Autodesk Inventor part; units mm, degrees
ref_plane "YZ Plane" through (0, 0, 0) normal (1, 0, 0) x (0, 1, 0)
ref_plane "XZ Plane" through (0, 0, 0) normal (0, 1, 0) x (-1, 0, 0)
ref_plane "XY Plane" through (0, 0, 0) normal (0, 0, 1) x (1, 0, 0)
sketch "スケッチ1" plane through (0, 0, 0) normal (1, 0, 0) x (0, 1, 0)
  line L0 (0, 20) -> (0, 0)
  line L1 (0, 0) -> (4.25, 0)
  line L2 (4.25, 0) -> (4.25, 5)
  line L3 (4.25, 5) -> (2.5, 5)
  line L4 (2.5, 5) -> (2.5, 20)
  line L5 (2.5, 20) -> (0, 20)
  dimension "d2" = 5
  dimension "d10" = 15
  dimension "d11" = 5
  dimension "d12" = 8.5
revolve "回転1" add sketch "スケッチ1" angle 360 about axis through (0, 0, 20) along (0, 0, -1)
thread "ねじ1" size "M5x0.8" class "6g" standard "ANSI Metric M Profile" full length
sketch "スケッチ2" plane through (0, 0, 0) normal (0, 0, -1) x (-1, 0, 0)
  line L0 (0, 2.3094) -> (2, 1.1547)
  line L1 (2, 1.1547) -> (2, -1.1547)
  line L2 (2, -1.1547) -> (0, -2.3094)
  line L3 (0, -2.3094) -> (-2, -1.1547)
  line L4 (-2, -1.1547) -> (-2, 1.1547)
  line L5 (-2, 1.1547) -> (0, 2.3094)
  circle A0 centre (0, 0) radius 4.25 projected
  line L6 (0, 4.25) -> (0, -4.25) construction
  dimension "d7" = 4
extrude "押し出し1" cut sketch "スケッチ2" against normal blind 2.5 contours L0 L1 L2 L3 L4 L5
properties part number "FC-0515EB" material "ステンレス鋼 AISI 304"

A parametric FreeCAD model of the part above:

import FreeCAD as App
import Part
import Sketcher
Q = App.Units.Quantity

doc = App.newDocument("Part")
params = doc.addObject("Spreadsheet::Sheet", "Params")
for row, (alias, value) in enumerate([
    ("sketch1_height", "5 mm"),
    ("sketch1_height2", "15 mm"),
    ("sketch1_width", "2.5 mm"),
    ("sketch1_width2", "4.25 mm"),
    ("revolution_angle", "360 deg"),
    ("pocket1_length", "2.5 mm"),
], start=1):
    params.set(f"A{row}", alias)
    params.set(f"B{row}", "=" + value)
    params.setAlias(f"B{row}", alias)

body = doc.addObject("PartDesign::Body", "Body")

sketch1 = body.newObject("Sketcher::SketchObject", "Sketch")
sketch1.AttachmentSupport = (doc.getObject("YZ_Plane"), [""])
sketch1.MapMode = "FlatFace"
sketch1.addGeometry([
    Part.LineSegment(App.Vector(2.5, 20, 0), App.Vector(0, 20, 0)),
    Part.LineSegment(App.Vector(0, 20, 0), App.Vector(0, 0, 0)),
    Part.LineSegment(App.Vector(0, 0, 0), App.Vector(4.2, 0, 0)),
    Part.LineSegment(App.Vector(4.2, 0, 0), App.Vector(4.2, 5, 0)),
    Part.LineSegment(App.Vector(4.2, 5, 0), App.Vector(2.5, 5, 0)),
    Part.LineSegment(App.Vector(2.5, 5, 0), App.Vector(2.5, 20, 0)),
], False)
sketch1.addConstraint([
    Sketcher.Constraint("Coincident", 0, 2, 1, 1),
    Sketcher.Constraint("Coincident", 1, 2, 2, 1),
    Sketcher.Constraint("Coincident", 2, 2, 3, 1),
    Sketcher.Constraint("Coincident", 3, 2, 4, 1),
    Sketcher.Constraint("Coincident", 4, 2, 5, 1),
    Sketcher.Constraint("Coincident", 5, 2, 0, 1),
    Sketcher.Constraint("Horizontal", 0),
    Sketcher.Constraint("Vertical", 1),
    Sketcher.Constraint("Horizontal", 2),
    Sketcher.Constraint("Vertical", 3),
    Sketcher.Constraint("Horizontal", 4),
    Sketcher.Constraint("Vertical", 5),
    Sketcher.Constraint("Coincident", 1, 2, -1, 1),
    Sketcher.Constraint("DistanceY", 3, 1, 3, 2, Q("5 mm")),
    Sketcher.Constraint("DistanceY", 5, 1, 5, 2, Q("15 mm")),
    Sketcher.Constraint("DistanceX", 0, 2, 0, 1, Q("2.5 mm")),
    Sketcher.Constraint("DistanceX", 2, 1, 2, 2, Q("4.25 mm")),
])
sketch1.setExpression("Constraints[13]", "Params.sketch1_height")
sketch1.setExpression("Constraints[14]", "Params.sketch1_height2")
sketch1.setExpression("Constraints[15]", "Params.sketch1_width")
sketch1.setExpression("Constraints[16]", "Params.sketch1_width2")
revolution = body.newObject("PartDesign::Revolution", "Revolution")
revolution.Profile = sketch1
revolution.ReferenceAxis = (sketch1, ["V_Axis"])
revolution.setExpression("Angle", "Params.revolution_angle")

sketch2 = body.newObject("Sketcher::SketchObject", "Sketch001")
sketch2.AttachmentSupport = (doc.getObject("XY_Plane"), [""])
sketch2.MapMode = "FlatFace"
sketch2.addGeometry([
    Part.LineSegment(App.Vector(-2, 1.2, 0), App.Vector(0, 2.3, 0)),
    Part.LineSegment(App.Vector(0, 2.3, 0), App.Vector(2, 1.2, 0)),
    Part.LineSegment(App.Vector(2, 1.2, 0), App.Vector(2, -1.2, 0)),
    Part.LineSegment(App.Vector(2, -1.2, 0), App.Vector(0, -2.3, 0)),
    Part.LineSegment(App.Vector(0, -2.3, 0), App.Vector(-2, -1.2, 0)),
    Part.LineSegment(App.Vector(-2, -1.2, 0), App.Vector(-2, 1.2, 0)),
], False)
sketch2.addConstraint([
    Sketcher.Constraint("Coincident", 0, 2, 1, 1),
    Sketcher.Constraint("Coincident", 1, 2, 2, 1),
    Sketcher.Constraint("Coincident", 2, 2, 3, 1),
    Sketcher.Constraint("Coincident", 3, 2, 4, 1),
    Sketcher.Constraint("Coincident", 4, 2, 5, 1),
    Sketcher.Constraint("Coincident", 5, 2, 0, 1),
    Sketcher.Constraint("Vertical", 2),
    Sketcher.Constraint("Vertical", 5),
    Sketcher.Constraint("Symmetric", 0, 2, 3, 2, -1, 1),
    Sketcher.Constraint("Symmetric", 1, 2, 4, 2, -1, 1),
    Sketcher.Constraint("PointOnObject", 0, 2, -2),
    Sketcher.Constraint("Parallel", 0, 3),
    Sketcher.Constraint("Horizontal", 2, 2, 4, 2),
    Sketcher.Constraint("DistanceX", 4, 2, 2, 2, Q("4 mm")),
    Sketcher.Constraint("Angle", 0, Q("30 deg")),
    Sketcher.Constraint("DistanceY", 2, 2, 2, 1, Q("2.3094 mm")),
])
pocket1 = body.newObject("PartDesign::Pocket", "Pocket")
pocket1.Profile = sketch2
pocket1.setExpression("Length", "Params.pocket1_length")
pocket1.Reversed = True

doc.recompute()
